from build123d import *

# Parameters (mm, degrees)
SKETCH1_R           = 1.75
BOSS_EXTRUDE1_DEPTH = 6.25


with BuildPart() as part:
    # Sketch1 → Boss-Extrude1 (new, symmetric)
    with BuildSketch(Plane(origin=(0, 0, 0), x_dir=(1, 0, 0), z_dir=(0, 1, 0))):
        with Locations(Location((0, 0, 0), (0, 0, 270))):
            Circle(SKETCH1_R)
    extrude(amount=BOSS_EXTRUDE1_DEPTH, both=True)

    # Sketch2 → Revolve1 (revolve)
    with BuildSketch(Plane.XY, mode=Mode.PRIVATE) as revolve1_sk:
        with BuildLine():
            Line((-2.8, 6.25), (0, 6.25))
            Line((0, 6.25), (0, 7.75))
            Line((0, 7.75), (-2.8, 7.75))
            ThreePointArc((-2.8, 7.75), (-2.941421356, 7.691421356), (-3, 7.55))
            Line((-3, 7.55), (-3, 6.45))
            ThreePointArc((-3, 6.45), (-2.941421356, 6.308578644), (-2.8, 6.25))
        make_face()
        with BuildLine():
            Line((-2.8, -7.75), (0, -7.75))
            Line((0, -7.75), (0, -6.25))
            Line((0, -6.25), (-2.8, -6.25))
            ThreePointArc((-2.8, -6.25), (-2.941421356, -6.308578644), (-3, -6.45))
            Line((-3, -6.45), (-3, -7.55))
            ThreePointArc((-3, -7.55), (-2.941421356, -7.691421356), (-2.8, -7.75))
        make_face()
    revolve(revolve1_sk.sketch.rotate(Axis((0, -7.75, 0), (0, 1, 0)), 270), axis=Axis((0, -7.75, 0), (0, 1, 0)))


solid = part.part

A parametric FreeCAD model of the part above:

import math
import FreeCAD as App
import Part
import Sketcher

V = App.Vector

doc = App.newDocument("Part")
body = doc.addObject("PartDesign::Body", "Body")

# Sketch on XZ plane
sketch1 = body.newObject("Sketcher::SketchObject", "Sketch")
sketch1.AttachmentSupport = (doc.getObject("XZ_Plane"), [""])
sketch1.MapMode = "FlatFace"
sketch1.addGeometry(Part.Circle(V(0, 0, 0), V(0, 0, 1), 1.8), False)
sketch1.addConstraint([
    Sketcher.Constraint("Coincident", 0, 3, -1, 1),
    Sketcher.Constraint("Diameter", 0, 3.5),
])
pad1 = body.newObject("PartDesign::Pad", "Pad")
pad1.Profile = sketch1
pad1.Length = 12.5
pad1.Midplane = True

# Sketch on XY plane
sketch2 = body.newObject("Sketcher::SketchObject", "Sketch001")
sketch2.AttachmentSupport = (doc.getObject("XY_Plane"), [""])
sketch2.MapMode = "FlatFace"
sketch2.addGeometry([
    Part.LineSegment(V(-2.8, 6.25, 0), V(0, 6.25, 0)),  # 0
    Part.LineSegment(V(0, 6.25, 0), V(0, 7.75, 0)),  # 1
    Part.LineSegment(V(0, 7.75, 0), V(-2.8, 7.75, 0)),  # 2
    Part.ArcOfCircle(Part.Circle(V(-2.8, 7.55, 0), V(0, 0, 1), 0.2), math.radians(90), math.radians(180)),  # 3
    Part.LineSegment(V(-3, 7.55, 0), V(-3, 6.45, 0)),  # 4
    Part.ArcOfCircle(Part.Circle(V(-2.8, 6.45, 0), V(0, 0, 1), 0.2), math.radians(-180), math.radians(-90)),  # 5
    Part.LineSegment(V(-2.8, -7.75, 0), V(0, -7.75, 0)),  # 6
    Part.LineSegment(V(0, -7.75, 0), V(0, -6.25, 0)),  # 7
    Part.LineSegment(V(0, -6.25, 0), V(-2.8, -6.25, 0)),  # 8
    Part.ArcOfCircle(Part.Circle(V(-2.8, -6.45, 0), V(0, 0, 1), 0.2), math.radians(90), math.radians(180)),  # 9
    Part.LineSegment(V(-3, -6.45, 0), V(-3, -7.55, 0)),  # 10
    Part.ArcOfCircle(Part.Circle(V(-2.8, -7.55, 0), V(0, 0, 1), 0.2), math.radians(-180), math.radians(-90)),  # 11
], False)
sketch2.addConstraint([
    Sketcher.Constraint("Coincident", 0, 2, 1, 1),
    Sketcher.Constraint("Coincident", 1, 2, 2, 1),
    Sketcher.Constraint("Tangent", 2, 2, 3, 1),
    Sketcher.Constraint("Tangent", 3, 2, 4, 1),
    Sketcher.Constraint("Tangent", 4, 2, 5, 1),
    Sketcher.Constraint("Tangent", 5, 2, 0, 1),
    Sketcher.Constraint("Coincident", 6, 2, 7, 1),
    Sketcher.Constraint("Coincident", 7, 2, 8, 1),
    Sketcher.Constraint("Tangent", 8, 2, 9, 1),
    Sketcher.Constraint("Tangent", 9, 2, 10, 1),
    Sketcher.Constraint("Tangent", 10, 2, 11, 1),
    Sketcher.Constraint("Tangent", 11, 2, 6, 1),
    Sketcher.Constraint("Horizontal", 0),
    Sketcher.Constraint("Vertical", 1),
    Sketcher.Constraint("Horizontal", 2),
    Sketcher.Constraint("Vertical", 4),
    Sketcher.Constraint("Horizontal", 6),
    Sketcher.Constraint("Vertical", 7),
    Sketcher.Constraint("Horizontal", 8),
    Sketcher.Constraint("Vertical", 10),
    Sketcher.Constraint("Equal", 3, 5),
    Sketcher.Constraint("Equal", 5, 9),
    Sketcher.Constraint("Equal", 9, 11),
    Sketcher.Constraint("Symmetric", 1, 2, 6, 2, -1, 1),
    Sketcher.Constraint("Symmetric", 5, 3, 9, 3, -1),
    Sketcher.Constraint("PointOnObject", 0, 2, -2),
    Sketcher.Constraint("Radius", 3, 0.2),
    Sketcher.Constraint("DistanceX", 0, 1, 0, 2, 2.8),
    Sketcher.Constraint("DistanceY", 1, 1, 1, 2, 1.5),
    Sketcher.Constraint("DistanceY", 9, 3, 3, 3, 14.0),
])
revolution = body.newObject("PartDesign::Revolution", "Revolution")
revolution.Profile = sketch2
revolution.ReferenceAxis = (sketch2, ["V_Axis"])
revolution.Angle = 360

doc.recompute()
